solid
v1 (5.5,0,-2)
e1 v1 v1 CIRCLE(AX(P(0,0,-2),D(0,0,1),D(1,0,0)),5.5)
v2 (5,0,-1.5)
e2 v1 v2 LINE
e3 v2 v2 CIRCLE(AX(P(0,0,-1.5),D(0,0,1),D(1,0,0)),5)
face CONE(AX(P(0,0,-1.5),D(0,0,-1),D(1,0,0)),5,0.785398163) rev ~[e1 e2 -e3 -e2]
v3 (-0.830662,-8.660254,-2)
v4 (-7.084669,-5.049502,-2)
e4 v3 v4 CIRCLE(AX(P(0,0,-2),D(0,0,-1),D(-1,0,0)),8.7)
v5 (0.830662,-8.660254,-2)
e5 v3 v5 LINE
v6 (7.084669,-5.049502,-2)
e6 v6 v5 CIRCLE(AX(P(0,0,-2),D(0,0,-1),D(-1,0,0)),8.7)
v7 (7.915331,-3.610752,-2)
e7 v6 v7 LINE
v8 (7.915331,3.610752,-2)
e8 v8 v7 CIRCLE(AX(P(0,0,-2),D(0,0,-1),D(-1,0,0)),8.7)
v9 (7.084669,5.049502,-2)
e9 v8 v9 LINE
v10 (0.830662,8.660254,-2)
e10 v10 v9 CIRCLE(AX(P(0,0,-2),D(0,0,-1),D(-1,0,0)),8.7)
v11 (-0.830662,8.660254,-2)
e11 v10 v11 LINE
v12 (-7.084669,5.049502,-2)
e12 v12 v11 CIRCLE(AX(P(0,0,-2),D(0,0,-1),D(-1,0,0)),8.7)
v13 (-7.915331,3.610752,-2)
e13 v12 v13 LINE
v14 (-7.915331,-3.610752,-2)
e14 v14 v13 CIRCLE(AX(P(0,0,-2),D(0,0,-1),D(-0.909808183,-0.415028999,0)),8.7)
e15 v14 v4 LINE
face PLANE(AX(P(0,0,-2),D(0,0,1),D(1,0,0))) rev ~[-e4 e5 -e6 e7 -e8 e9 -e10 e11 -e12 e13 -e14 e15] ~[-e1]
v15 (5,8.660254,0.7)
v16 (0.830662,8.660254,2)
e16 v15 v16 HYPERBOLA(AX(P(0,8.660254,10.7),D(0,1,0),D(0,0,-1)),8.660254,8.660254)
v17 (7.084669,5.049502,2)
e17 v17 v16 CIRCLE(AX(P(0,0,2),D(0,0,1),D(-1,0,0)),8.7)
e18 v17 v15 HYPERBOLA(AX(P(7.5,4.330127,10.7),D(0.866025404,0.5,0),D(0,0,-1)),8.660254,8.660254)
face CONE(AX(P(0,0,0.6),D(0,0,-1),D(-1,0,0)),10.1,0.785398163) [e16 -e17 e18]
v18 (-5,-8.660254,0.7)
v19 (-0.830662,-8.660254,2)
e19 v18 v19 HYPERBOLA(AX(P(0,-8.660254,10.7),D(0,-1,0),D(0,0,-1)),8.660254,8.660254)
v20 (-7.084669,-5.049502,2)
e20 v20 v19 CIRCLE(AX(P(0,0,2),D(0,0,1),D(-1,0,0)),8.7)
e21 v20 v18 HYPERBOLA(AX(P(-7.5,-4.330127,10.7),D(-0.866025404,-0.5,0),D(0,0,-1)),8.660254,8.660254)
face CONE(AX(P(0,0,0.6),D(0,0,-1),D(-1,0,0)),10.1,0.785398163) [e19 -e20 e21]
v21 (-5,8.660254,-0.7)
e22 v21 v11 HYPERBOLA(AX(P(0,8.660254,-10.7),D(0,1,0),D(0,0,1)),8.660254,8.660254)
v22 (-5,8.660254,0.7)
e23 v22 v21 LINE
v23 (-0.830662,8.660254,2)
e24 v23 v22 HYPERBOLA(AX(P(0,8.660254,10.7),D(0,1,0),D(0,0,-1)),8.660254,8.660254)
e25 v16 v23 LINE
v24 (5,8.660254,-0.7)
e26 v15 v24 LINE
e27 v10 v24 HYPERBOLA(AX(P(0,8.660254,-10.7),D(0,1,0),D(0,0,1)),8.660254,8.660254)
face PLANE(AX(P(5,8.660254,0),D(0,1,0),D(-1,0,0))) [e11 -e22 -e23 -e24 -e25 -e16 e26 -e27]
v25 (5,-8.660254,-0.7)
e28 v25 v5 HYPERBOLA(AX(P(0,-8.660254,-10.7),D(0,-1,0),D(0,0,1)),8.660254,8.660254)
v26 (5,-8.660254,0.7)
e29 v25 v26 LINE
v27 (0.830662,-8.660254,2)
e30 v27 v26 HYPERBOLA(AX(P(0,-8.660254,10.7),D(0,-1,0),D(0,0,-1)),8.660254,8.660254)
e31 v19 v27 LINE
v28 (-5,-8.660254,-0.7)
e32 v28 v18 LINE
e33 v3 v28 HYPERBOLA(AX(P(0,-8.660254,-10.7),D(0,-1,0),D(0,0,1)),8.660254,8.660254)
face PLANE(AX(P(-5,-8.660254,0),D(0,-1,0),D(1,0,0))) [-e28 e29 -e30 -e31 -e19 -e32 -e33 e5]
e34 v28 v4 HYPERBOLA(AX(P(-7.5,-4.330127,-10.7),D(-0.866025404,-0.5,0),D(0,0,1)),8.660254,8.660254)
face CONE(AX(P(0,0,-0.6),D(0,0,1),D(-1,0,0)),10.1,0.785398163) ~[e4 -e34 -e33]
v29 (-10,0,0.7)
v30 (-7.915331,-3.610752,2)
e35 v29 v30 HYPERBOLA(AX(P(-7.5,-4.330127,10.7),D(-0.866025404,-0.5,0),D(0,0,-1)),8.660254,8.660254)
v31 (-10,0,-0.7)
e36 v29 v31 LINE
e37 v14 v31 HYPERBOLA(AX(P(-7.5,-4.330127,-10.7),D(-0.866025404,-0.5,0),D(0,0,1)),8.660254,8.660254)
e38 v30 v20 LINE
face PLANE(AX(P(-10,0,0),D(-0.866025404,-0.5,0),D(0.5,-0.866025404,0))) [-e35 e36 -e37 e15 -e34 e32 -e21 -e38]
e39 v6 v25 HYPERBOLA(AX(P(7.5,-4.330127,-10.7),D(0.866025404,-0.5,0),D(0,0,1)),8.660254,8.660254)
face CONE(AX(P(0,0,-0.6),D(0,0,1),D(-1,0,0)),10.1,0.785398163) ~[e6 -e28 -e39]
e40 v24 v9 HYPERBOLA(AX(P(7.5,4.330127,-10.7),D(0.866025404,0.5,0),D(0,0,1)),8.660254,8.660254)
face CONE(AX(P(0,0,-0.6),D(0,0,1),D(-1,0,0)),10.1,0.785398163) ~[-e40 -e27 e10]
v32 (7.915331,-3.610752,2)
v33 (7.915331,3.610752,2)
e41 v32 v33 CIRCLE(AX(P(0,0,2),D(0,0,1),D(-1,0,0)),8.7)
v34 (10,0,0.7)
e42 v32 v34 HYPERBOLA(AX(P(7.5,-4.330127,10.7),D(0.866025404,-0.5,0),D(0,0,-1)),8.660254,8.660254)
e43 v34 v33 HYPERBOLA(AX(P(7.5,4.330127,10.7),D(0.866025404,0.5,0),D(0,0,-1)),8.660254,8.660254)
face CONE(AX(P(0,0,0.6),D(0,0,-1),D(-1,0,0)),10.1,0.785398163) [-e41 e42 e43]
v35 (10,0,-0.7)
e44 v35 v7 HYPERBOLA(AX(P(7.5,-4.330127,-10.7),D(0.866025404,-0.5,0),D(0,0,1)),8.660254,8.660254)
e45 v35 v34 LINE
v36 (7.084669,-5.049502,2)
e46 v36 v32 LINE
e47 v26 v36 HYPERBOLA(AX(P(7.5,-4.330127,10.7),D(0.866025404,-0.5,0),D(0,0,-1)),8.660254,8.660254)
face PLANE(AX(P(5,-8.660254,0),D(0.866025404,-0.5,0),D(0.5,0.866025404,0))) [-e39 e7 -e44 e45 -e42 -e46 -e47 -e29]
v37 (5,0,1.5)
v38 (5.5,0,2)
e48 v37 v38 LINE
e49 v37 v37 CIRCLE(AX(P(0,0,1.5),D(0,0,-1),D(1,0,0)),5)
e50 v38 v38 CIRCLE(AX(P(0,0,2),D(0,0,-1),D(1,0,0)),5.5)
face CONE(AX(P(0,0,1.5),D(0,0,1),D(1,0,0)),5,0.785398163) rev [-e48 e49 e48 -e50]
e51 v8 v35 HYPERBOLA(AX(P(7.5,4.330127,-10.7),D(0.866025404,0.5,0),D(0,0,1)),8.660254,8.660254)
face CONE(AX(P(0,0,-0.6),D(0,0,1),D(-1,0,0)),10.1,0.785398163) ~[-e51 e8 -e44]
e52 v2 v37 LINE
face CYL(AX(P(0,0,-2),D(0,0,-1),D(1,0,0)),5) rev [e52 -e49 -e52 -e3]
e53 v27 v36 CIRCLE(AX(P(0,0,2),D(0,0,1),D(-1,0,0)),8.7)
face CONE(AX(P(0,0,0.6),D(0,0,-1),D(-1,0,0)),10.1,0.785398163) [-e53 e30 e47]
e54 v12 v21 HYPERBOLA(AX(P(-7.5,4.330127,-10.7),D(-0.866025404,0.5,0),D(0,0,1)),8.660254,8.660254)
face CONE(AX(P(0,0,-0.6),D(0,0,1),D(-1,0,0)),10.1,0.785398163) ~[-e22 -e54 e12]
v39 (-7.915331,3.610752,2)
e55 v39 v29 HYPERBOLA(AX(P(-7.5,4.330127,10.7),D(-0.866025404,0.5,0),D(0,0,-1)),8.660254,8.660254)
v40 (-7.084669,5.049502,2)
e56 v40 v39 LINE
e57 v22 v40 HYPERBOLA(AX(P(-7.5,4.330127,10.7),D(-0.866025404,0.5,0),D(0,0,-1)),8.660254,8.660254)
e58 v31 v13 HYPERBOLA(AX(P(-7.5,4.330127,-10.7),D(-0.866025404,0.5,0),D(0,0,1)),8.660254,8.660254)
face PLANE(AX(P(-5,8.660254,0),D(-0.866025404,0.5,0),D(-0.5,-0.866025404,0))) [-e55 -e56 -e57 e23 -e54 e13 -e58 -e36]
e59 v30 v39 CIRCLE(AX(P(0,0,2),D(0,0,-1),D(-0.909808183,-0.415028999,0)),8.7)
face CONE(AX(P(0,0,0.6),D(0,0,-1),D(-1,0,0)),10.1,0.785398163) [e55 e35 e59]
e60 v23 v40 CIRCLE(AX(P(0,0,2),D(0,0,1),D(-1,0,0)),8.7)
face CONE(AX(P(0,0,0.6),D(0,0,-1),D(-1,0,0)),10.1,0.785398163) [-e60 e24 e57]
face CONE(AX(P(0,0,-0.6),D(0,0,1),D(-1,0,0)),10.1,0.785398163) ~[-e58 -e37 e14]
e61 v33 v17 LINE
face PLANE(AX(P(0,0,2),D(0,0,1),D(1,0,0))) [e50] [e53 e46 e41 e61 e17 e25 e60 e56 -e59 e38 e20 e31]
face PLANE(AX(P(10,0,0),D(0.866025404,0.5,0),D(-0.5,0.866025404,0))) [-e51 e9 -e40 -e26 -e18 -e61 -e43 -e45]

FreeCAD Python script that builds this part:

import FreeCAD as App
import Part
import Sketcher
from FreeCAD import Vector
Q = App.Units.Quantity


def edges_at(feature, points):
    """Names of the edges that pass closest to the given points."""
    edges = feature.Shape.Edges
    near = lambda p: min(range(len(edges)), key=lambda i: edges[i].distToShape(Part.Vertex(*p))[0])
    return sorted({f"Edge{near(p) + 1}" for p in points})


def add_polygon(sketch, points):
    """Adds a closed chain of lines whose ends are joined by coincident constraints."""
    first, n = sketch.GeometryCount, len(points)
    for a, b in zip(points, points[1:] + points[:1]):
        sketch.addGeometry(Part.LineSegment(App.Vector(*a, 0), App.Vector(*b, 0)), False)
    for i in range(n):
        sketch.addConstraint(Sketcher.Constraint("Coincident", first + i, 2, first + (i + 1) % n, 1))

doc = App.newDocument("Part")
body = doc.addObject("PartDesign::Body", "Body")

sketch1 = doc.addObject("Sketcher::SketchObject", "Sketch")
body.addObject(sketch1)
sketch1.AttachmentSupport = (doc.XY_Plane, [""])
sketch1.MapMode = "FlatFace"
add_polygon(sketch1, [(-10, 0), (-5, -8.660254), (5, -8.660254), (10, 0), (5, 8.660254), (-5, 8.660254)])
sketch1.addConstraint([
    Sketcher.Constraint("Horizontal", 1),
    Sketcher.Constraint("Horizontal", 4),
    Sketcher.Constraint("Symmetric", 0, 2, 3, 2, -1, 1),
    Sketcher.Constraint("Symmetric", 2, 2, 5, 2, -1, 1),
    Sketcher.Constraint("PointOnObject", 2, 2, -1),
    Sketcher.Constraint("Parallel", 2, 5),
    Sketcher.Constraint("Vertical", 1, 2, 3, 2),
    Sketcher.Constraint("DistanceX", 1, 1, 1, 2, Q("10 mm")),
    Sketcher.Constraint("Angle", 0, Q("-60 deg")),
    Sketcher.Constraint("Distance", 0, Q("10 mm")),
])
pad1 = doc.addObject("PartDesign::Pad", "Pad")
body.addObject(pad1)
pad1.Profile = sketch1
pad1.Length = 4
pad1.Midplane = True

sketch2 = doc.addObject("Sketcher::SketchObject", "Sketch001")
body.addObject(sketch2)
sketch2.AttachmentSupport = (doc.XY_Plane, [""])
sketch2.MapMode = "FlatFace"
sketch2.AttachmentOffset = App.Placement(Vector(0, 0, -2), App.Rotation())
sketch2.addGeometry(Part.Circle(Vector(0, 0, 0), Vector(0, 0, 1), 5), False)
sketch2.addConstraint([
    Sketcher.Constraint("Coincident", 0, 3, -1, 1),
    Sketcher.Constraint("Diameter", 0, Q("10 mm")),
])
pocket1 = doc.addObject("PartDesign::Pocket", "Pocket")
body.addObject(pocket1)
pocket1.Profile = sketch2
pocket1.Type = "ThroughAll"
pocket1.Reversed = True

sketch3 = doc.addObject("Sketcher::SketchObject", "Sketch002")
body.addObject(sketch3)
sketch3.AttachmentSupport = (doc.XZ_Plane, [""])
sketch3.MapMode = "FlatFace"
add_polygon(sketch3, [(-10.1, 2.1), (-8.6, 2.1), (-10.1, 0.6)])
sketch3.addConstraint([
    Sketcher.Constraint("Horizontal", 0),
    Sketcher.Constraint("Vertical", 2),
    Sketcher.Constraint("Equal", 0, 2),
    Sketcher.Constraint("DistanceX", 0, 1, 0, 2, Q("1.5 mm")),
    Sketcher.Constraint("DistanceX", 0, 2, -1, 1, Q("8.6 mm")),
    Sketcher.Constraint("DistanceY", -1, 1, 0, 2, Q("2.1 mm")),
])
groove = doc.addObject("PartDesign::Groove", "Groove")
body.addObject(groove)
groove.Profile = sketch3
groove.ReferenceAxis = (sketch3, ["V_Axis"])
groove.Angle = 360
doc.recompute()

mirrored = doc.addObject("PartDesign::Mirrored", "Mirrored")
body.addObject(mirrored)
mirrored.Originals = [groove]
mirrored.MirrorPlane = (doc.XY_Plane, [""])
body.Tip = mirrored
doc.recompute()

chamfer = doc.addObject("PartDesign::Chamfer", "Chamfer")
body.addObject(chamfer)
chamfer.Base = (mirrored, edges_at(mirrored, [(-5, 0, -2), (-5, 0, 2)]))
chamfer.Size = 0.5

doc.recompute()
